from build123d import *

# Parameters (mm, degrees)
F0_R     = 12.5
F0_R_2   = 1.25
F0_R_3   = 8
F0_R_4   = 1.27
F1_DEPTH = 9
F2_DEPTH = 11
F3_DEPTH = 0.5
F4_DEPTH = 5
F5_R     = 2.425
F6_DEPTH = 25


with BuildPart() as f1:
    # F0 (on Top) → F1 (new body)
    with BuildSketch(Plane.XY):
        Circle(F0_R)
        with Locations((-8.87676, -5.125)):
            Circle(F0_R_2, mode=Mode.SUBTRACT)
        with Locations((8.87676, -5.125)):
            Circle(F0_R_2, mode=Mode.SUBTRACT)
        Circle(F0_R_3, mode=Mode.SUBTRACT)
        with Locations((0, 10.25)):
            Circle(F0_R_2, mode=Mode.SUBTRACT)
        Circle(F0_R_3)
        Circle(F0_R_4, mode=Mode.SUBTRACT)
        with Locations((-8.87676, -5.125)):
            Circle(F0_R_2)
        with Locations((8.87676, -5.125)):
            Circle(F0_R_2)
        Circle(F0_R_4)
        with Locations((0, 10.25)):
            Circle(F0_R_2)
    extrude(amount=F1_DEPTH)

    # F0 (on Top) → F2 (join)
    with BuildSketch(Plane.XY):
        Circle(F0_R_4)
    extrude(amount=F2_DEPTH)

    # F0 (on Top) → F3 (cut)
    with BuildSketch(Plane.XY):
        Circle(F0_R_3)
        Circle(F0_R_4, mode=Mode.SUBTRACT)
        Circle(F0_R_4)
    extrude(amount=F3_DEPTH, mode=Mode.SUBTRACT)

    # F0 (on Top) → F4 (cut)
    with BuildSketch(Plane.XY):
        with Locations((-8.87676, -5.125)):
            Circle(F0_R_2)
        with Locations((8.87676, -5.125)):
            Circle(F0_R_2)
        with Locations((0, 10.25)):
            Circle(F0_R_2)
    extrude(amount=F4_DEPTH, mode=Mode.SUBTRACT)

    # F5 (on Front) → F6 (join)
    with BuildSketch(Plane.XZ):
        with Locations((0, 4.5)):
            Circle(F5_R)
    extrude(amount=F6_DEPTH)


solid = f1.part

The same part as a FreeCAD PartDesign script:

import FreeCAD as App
import Part
import Sketcher
from FreeCAD import Vector
Q = App.Units.Quantity

doc = App.newDocument("Part")
body = doc.addObject("PartDesign::Body", "Body")

sketch1 = body.newObject("Sketcher::SketchObject", "Sketch")
sketch1.AttachmentSupport = (doc.getObject("XY_Plane"), [""])
sketch1.MapMode = "FlatFace"
sketch1.addGeometry(Part.Circle(Vector(0, 0, 0), Vector(0, 0, 1), 12.5), False)
sketch1.addConstraint([
    Sketcher.Constraint("Coincident", 0, 3, -1, 1),
    Sketcher.Constraint("Diameter", 0, Q("25 mm")),
])
pad1 = body.newObject("PartDesign::Pad", "Pad")
pad1.Profile = sketch1
pad1.Length = 9

sketch2 = body.newObject("Sketcher::SketchObject", "Sketch001")
sketch2.AttachmentSupport = (doc.getObject("XY_Plane"), [""])
sketch2.MapMode = "FlatFace"
sketch2.addGeometry(Part.Circle(Vector(0, 0, 0), Vector(0, 0, 1), 1.27), False)
sketch2.addConstraint([
    Sketcher.Constraint("Coincident", 0, 3, -1, 1),
    Sketcher.Constraint("Diameter", 0, Q("2.54 mm")),
])
pad2 = body.newObject("PartDesign::Pad", "Pad001")
pad2.Profile = sketch2
pad2.Length = 11

sketch3 = body.newObject("Sketcher::SketchObject", "Sketch002")
sketch3.AttachmentSupport = (doc.getObject("XY_Plane"), [""])
sketch3.MapMode = "FlatFace"
sketch3.addGeometry(Part.Circle(Vector(0, 0, 0), Vector(0, 0, 1), 8), False)
sketch3.addConstraint([
    Sketcher.Constraint("Coincident", 0, 3, -1, 1),
    Sketcher.Constraint("Diameter", 0, Q("16 mm")),
])
pocket1 = body.newObject("PartDesign::Pocket", "Pocket")
pocket1.Profile = sketch3
pocket1.Length = 0.5
pocket1.Reversed = True

sketch4 = body.newObject("Sketcher::SketchObject", "Sketch003")
sketch4.AttachmentSupport = (doc.getObject("XY_Plane"), [""])
sketch4.MapMode = "FlatFace"
sketch4.addGeometry([
    Part.Circle(Vector(-8.87676, -5.125, 0), Vector(0, 0, 1), 1.25),
    Part.Circle(Vector(8.87676, -5.125, 0), Vector(0, 0, 1), 1.25),
    Part.Circle(Vector(0, 10.25, 0), Vector(0, 0, 1), 1.25),
], False)
sketch4.addConstraint([
    Sketcher.Constraint("Equal", 0, 1),
    Sketcher.Constraint("Equal", 1, 2),
    Sketcher.Constraint("Symmetric", 0, 3, 1, 3, -2),
    Sketcher.Constraint("PointOnObject", 2, 3, -2),
    Sketcher.Constraint("Diameter", 0, Q("2.5 mm")),
    Sketcher.Constraint("DistanceY", -1, 1, 2, 3, Q("10.25 mm")),
    Sketcher.Constraint("DistanceY", 0, 3, -1, 1, Q("5.125 mm")),
    Sketcher.Constraint("DistanceX", 0, 3, -1, 1, Q("8.87676 mm")),
])
pocket2 = body.newObject("PartDesign::Pocket", "Pocket001")
pocket2.Profile = sketch4
pocket2.Length = 5
pocket2.Reversed = True

sketch5 = body.newObject("Sketcher::SketchObject", "Sketch004")
sketch5.AttachmentSupport = (doc.getObject("XZ_Plane"), [""])
sketch5.MapMode = "FlatFace"
sketch5.addGeometry(Part.Circle(Vector(0, 4.5, 0), Vector(0, 0, 1), 2.425), False)
sketch5.addConstraint([
    Sketcher.Constraint("PointOnObject", 0, 3, -2),
    Sketcher.Constraint("Diameter", 0, Q("4.85 mm")),
    Sketcher.Constraint("DistanceY", -1, 1, 0, 3, Q("4.5 mm")),
])
pad3 = body.newObject("PartDesign::Pad", "Pad002")
pad3.Profile = sketch5
pad3.Length = 25

doc.recompute()
